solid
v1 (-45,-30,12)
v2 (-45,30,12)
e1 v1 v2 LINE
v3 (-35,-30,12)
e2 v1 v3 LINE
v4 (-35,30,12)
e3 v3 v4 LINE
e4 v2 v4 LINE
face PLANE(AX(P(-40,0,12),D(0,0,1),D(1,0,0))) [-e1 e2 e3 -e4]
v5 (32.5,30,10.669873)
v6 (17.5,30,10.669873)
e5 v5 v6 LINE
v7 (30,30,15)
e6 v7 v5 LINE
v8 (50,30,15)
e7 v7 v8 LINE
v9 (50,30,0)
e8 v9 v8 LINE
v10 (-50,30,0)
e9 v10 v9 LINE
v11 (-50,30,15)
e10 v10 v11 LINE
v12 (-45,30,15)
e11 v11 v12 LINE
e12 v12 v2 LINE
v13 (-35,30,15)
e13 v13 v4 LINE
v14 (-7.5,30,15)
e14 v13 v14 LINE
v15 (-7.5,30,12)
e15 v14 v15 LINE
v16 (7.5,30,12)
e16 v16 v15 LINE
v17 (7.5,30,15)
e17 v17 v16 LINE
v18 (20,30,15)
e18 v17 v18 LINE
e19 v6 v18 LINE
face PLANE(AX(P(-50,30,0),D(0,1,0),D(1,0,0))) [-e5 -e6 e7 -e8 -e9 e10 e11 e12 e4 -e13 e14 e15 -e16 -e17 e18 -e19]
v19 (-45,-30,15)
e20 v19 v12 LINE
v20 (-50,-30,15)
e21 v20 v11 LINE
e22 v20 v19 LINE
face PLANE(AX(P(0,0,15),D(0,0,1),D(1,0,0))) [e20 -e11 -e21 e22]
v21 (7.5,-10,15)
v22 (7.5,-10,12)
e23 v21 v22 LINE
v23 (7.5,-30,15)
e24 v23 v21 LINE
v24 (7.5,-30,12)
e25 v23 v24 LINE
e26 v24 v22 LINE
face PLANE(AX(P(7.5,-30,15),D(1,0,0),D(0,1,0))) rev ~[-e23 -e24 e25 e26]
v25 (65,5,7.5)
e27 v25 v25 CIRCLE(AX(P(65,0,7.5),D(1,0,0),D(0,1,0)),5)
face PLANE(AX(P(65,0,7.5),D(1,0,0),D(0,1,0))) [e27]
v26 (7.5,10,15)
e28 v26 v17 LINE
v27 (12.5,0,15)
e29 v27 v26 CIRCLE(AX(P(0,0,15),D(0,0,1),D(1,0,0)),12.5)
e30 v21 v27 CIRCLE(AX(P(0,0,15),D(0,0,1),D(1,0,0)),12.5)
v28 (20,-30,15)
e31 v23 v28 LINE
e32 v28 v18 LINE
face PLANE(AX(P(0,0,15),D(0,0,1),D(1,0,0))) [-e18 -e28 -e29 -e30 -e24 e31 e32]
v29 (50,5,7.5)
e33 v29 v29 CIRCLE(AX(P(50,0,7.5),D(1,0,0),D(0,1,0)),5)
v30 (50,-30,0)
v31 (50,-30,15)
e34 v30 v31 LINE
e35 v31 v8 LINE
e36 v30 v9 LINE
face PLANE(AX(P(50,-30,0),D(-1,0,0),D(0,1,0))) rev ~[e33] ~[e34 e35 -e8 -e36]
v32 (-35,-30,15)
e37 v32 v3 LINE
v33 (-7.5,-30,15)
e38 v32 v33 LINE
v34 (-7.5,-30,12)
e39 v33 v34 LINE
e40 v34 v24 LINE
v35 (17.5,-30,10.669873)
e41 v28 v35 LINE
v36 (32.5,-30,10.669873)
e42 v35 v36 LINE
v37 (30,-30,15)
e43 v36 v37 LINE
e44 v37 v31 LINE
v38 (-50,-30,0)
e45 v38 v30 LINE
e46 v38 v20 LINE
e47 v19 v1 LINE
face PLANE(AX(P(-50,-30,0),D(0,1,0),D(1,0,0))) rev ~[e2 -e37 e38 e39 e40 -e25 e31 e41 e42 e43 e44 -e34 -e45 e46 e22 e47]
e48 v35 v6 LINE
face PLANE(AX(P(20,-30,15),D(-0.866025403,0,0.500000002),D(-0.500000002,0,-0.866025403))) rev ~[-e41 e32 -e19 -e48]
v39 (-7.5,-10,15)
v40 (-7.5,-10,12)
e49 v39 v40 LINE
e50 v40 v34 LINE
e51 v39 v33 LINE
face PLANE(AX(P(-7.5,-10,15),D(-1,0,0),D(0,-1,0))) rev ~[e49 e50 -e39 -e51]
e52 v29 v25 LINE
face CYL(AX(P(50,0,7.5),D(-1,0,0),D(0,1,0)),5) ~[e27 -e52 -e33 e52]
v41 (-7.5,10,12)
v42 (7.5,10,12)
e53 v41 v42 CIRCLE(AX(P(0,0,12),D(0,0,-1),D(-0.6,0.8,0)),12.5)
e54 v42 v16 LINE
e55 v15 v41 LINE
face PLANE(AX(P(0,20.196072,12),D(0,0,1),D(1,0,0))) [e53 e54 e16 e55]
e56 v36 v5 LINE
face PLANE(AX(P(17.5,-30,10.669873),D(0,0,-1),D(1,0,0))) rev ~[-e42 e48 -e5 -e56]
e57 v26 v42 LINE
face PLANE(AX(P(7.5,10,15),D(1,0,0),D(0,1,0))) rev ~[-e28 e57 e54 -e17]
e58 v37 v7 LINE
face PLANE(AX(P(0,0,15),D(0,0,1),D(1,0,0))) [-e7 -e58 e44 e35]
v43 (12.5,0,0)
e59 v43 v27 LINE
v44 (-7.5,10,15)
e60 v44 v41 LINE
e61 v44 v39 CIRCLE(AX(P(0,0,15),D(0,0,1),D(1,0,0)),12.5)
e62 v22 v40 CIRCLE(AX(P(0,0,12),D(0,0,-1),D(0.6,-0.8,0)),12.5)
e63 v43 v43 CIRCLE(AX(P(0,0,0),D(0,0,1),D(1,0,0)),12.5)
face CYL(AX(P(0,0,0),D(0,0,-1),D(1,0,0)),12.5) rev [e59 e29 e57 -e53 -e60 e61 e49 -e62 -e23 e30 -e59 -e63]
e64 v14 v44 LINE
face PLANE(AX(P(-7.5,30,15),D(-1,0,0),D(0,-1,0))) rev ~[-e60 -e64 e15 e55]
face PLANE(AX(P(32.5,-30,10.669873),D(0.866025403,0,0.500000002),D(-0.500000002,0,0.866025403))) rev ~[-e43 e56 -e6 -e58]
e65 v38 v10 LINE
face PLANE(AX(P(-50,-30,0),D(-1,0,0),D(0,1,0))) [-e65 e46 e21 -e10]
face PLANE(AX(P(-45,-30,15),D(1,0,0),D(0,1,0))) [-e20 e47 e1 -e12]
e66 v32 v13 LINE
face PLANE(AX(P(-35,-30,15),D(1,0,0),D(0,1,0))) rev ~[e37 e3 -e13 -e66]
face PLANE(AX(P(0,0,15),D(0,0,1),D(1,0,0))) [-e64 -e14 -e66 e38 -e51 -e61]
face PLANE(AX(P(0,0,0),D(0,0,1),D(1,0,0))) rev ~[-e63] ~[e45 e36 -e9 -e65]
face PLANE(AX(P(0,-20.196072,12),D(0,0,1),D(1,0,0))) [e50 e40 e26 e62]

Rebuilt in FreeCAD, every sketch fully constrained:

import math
import FreeCAD as App
import Part
import Sketcher

V = App.Vector
Q = App.Units.Quantity

doc = App.newDocument("Part")
body = doc.addObject("PartDesign::Body", "Body")

sketch1 = body.newObject("Sketcher::SketchObject", "Sketch")
sketch1.AttachmentSupport = (doc.getObject("XY_Plane"), [""])
sketch1.MapMode = "FlatFace"
sketch1.addGeometry([
    Part.LineSegment(V(-50, 30, 0), V(-50, -30, 0)),
    Part.LineSegment(V(-50, -30, 0), V(50, -30, 0)),
    Part.LineSegment(V(50, -30, 0), V(50, 30, 0)),
    Part.LineSegment(V(50, 30, 0), V(-50, 30, 0)),
    Part.Circle(V(0, 0, 0), V(0, 0, 1), 12),
], False)
sketch1.addConstraint([
    Sketcher.Constraint("Coincident", 0, 2, 1, 1),
    Sketcher.Constraint("Coincident", 1, 2, 2, 1),
    Sketcher.Constraint("Coincident", 2, 2, 3, 1),
    Sketcher.Constraint("Coincident", 3, 2, 0, 1),
    Sketcher.Constraint("Vertical", 0),
    Sketcher.Constraint("Horizontal", 1),
    Sketcher.Constraint("Vertical", 2),
    Sketcher.Constraint("Horizontal", 3),
    Sketcher.Constraint("Coincident", 4, 3, -1, 1),
    Sketcher.Constraint("Symmetric", 0, 2, 2, 2, -1, 1),
    Sketcher.Constraint("Diameter", 4, Q("25 mm")),
    Sketcher.Constraint("DistanceX", 1, 1, 1, 2, Q("100 mm")),
    Sketcher.Constraint("DistanceY", 0, 2, 0, 1, Q("60 mm")),
])
pad1 = body.newObject("PartDesign::Pad", "Pad")
pad1.Profile = sketch1
pad1.Length = 15

sketch2 = body.newObject("Sketcher::SketchObject", "Sketch001")
sketch2.AttachmentSupport = (doc.getObject("XY_Plane"), [""])
sketch2.MapMode = "FlatFace"
sketch2.AttachmentOffset = App.Placement(V(0, 0, 15), App.Rotation())
sketch2.addGeometry([
    Part.LineSegment(V(8, 30, 0), V(-8, 30, 0)),
    Part.LineSegment(V(-8, 30, 0), V(-8, 10, 0)),
    Part.ArcOfCircle(Part.Circle(V(0, 0, 0), V(0, 0, 1), 12), math.radians(53), math.radians(127)),
    Part.LineSegment(V(8, 10, 0), V(8, 30, 0)),
    Part.LineSegment(V(-8, -10, 0), V(-8, -30, 0)),
    Part.LineSegment(V(-8, -30, 0), V(8, -30, 0)),
    Part.LineSegment(V(8, -30, 0), V(8, -10, 0)),
    Part.ArcOfCircle(Part.Circle(V(0, 0, 0), V(0, 0, 1), 12), math.radians(-127), math.radians(-53)),
    Part.LineSegment(V(-45, 30, 0), V(-45, -30, 0)),
    Part.LineSegment(V(-45, -30, 0), V(-35, -30, 0)),
    Part.LineSegment(V(-35, -30, 0), V(-35, 30, 0)),
    Part.LineSegment(V(-35, 30, 0), V(-45, 30, 0)),
], False)
sketch2.addConstraint([
    Sketcher.Constraint("Coincident", 0, 2, 1, 1),
    Sketcher.Constraint("Coincident", 1, 2, 2, 2),
    Sketcher.Constraint("Coincident", 2, 1, 3, 1),
    Sketcher.Constraint("Coincident", 3, 2, 0, 1),
    Sketcher.Constraint("Coincident", 4, 2, 5, 1),
    Sketcher.Constraint("Coincident", 5, 2, 6, 1),
    Sketcher.Constraint("Coincident", 6, 2, 7, 2),
    Sketcher.Constraint("Coincident", 7, 1, 4, 1),
    Sketcher.Constraint("Coincident", 8, 2, 9, 1),
    Sketcher.Constraint("Coincident", 9, 2, 10, 1),
    Sketcher.Constraint("Coincident", 10, 2, 11, 1),
    Sketcher.Constraint("Coincident", 11, 2, 8, 1),
    Sketcher.Constraint("Horizontal", 0),
    Sketcher.Constraint("Vertical", 1),
    Sketcher.Constraint("Vertical", 3),
    Sketcher.Constraint("Vertical", 4),
    Sketcher.Constraint("Horizontal", 5),
    Sketcher.Constraint("Vertical", 6),
    Sketcher.Constraint("Vertical", 8),
    Sketcher.Constraint("Horizontal", 9),
    Sketcher.Constraint("Vertical", 10),
    Sketcher.Constraint("Horizontal", 11),
    Sketcher.Constraint("Coincident", 2, 3, -1, 1),
    Sketcher.Constraint("Coincident", 7, 3, -1, 1),
    Sketcher.Constraint("Equal", 2, 7),
    Sketcher.Constraint("Symmetric", 3, 2, 4, 2, -1, 1),
    Sketcher.Constraint("Horizontal", 1, 2, 2, 1),
    Sketcher.Constraint("Horizontal", 6, 2, 7, 1),
    Sketcher.Constraint("Horizontal", 5, 2, 8, 2),
    Sketcher.Constraint("Horizontal", 3, 2, 10, 2),
    Sketcher.Constraint("Radius", 2, Q("12.5 mm")),
    Sketcher.Constraint("DistanceX", 0, 2, 0, 1, Q("15 mm")),
    Sketcher.Constraint("DistanceX", 9, 1, 9, 2, Q("10 mm")),
    Sketcher.Constraint("DistanceY", 1, 2, 1, 1, Q("20 mm")),
    Sketcher.Constraint("DistanceX", 8, 2, -1, 1, Q("45 mm")),
])
pocket1 = body.newObject("PartDesign::Pocket", "Pocket")
pocket1.Profile = sketch2
pocket1.Length = 3

sketch3 = body.newObject("Sketcher::SketchObject", "Sketch002")
sketch3.AttachmentSupport = (doc.getObject("XZ_Plane"), [""])
sketch3.MapMode = "FlatFace"
sketch3.AttachmentOffset = App.Placement(V(0, 0, 30), App.Rotation())
sketch3.addGeometry([
    Part.LineSegment(V(30, 15, 0), V(20, 15, 0)),
    Part.LineSegment(V(20, 15, 0), V(17.5, 10.7, 0)),
    Part.LineSegment(V(17.5, 10.7, 0), V(32.5, 10.7, 0)),
    Part.LineSegment(V(32.5, 10.7, 0), V(30, 15, 0)),
], False)
sketch3.addConstraint([
    Sketcher.Constraint("Coincident", 0, 2, 1, 1),
    Sketcher.Constraint("Coincident", 1, 2, 2, 1),
    Sketcher.Constraint("Coincident", 2, 2, 3, 1),
    Sketcher.Constraint("Coincident", 3, 2, 0, 1),
    Sketcher.Constraint("Horizontal", 0),
    Sketcher.Constraint("Horizontal", 2),
    Sketcher.Constraint("Equal", 1, 3),
    Sketcher.Constraint("DistanceX", 0, 2, 0, 1, Q("10 mm")),
    Sketcher.Constraint("DistanceX", 2, 1, 2, 2, Q("15 mm")),
    Sketcher.Constraint("Angle", 1, Q("-120 deg")),
    Sketcher.Constraint("DistanceX", -1, 1, 0, 2, Q("20 mm")),
    Sketcher.Constraint("DistanceY", -1, 1, 0, 2, Q("15 mm")),
])
pocket2 = body.newObject("PartDesign::Pocket", "Pocket001")
pocket2.Profile = sketch3
pocket2.Type = "ThroughAll"

sketch4 = body.newObject("Sketcher::SketchObject", "Sketch003")
sketch4.AttachmentSupport = (doc.getObject("YZ_Plane"), [""])
sketch4.MapMode = "FlatFace"
sketch4.AttachmentOffset = App.Placement(V(0, 0, 50), App.Rotation())
sketch4.addGeometry(Part.Circle(V(0, 8, 0), V(0, 0, 1), 5), False)
sketch4.addConstraint([
    Sketcher.Constraint("PointOnObject", 0, 3, -2),
    Sketcher.Constraint("Diameter", 0, Q("10 mm")),
    Sketcher.Constraint("DistanceY", -1, 1, 0, 3, Q("7.5 mm")),
])
pad2 = body.newObject("PartDesign::Pad", "Pad001")
pad2.Profile = sketch4
pad2.Length = 15

doc.recompute()
